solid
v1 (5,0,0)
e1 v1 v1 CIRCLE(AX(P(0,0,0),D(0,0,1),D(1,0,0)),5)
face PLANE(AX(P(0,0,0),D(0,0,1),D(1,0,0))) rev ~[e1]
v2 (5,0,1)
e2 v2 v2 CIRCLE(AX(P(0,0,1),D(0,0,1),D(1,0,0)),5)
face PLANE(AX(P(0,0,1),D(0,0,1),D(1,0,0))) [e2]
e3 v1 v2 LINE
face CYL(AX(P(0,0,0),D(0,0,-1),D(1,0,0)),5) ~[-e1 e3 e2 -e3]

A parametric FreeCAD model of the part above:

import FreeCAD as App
import Part
import Sketcher

doc = App.newDocument("Part")
params = doc.addObject("Spreadsheet::Sheet", "Params")
for row, (alias, value) in enumerate([
    ("sketch1_diameter", "10 mm"),
    ("pad1_length", "1 mm"),
], start=1):
    params.set(f"A{row}", alias)
    params.set(f"B{row}", "=" + value)
    params.setAlias(f"B{row}", alias)

body = doc.addObject("PartDesign::Body", "Body")

sketch1 = body.newObject("Sketcher::SketchObject", "Sketch")
sketch1.AttachmentSupport = (doc.getObject("XY_Plane"), [""])
sketch1.MapMode = "FlatFace"
sketch1.addGeometry(Part.Circle(App.Vector(0, 0, 0), App.Vector(0, 0, 1), 5), False)
sketch1.addConstraint(Sketcher.Constraint("Coincident", 0, 3, -1, 1))
sketch1.addConstraint(Sketcher.Constraint("Diameter", 0, 10.0))
sketch1.setExpression("Constraints[1]", "Params.sketch1_diameter")
pad1 = body.newObject("PartDesign::Pad", "Pad")
pad1.Profile = sketch1
pad1.setExpression("Length", "Params.pad1_length")

doc.recompute()
